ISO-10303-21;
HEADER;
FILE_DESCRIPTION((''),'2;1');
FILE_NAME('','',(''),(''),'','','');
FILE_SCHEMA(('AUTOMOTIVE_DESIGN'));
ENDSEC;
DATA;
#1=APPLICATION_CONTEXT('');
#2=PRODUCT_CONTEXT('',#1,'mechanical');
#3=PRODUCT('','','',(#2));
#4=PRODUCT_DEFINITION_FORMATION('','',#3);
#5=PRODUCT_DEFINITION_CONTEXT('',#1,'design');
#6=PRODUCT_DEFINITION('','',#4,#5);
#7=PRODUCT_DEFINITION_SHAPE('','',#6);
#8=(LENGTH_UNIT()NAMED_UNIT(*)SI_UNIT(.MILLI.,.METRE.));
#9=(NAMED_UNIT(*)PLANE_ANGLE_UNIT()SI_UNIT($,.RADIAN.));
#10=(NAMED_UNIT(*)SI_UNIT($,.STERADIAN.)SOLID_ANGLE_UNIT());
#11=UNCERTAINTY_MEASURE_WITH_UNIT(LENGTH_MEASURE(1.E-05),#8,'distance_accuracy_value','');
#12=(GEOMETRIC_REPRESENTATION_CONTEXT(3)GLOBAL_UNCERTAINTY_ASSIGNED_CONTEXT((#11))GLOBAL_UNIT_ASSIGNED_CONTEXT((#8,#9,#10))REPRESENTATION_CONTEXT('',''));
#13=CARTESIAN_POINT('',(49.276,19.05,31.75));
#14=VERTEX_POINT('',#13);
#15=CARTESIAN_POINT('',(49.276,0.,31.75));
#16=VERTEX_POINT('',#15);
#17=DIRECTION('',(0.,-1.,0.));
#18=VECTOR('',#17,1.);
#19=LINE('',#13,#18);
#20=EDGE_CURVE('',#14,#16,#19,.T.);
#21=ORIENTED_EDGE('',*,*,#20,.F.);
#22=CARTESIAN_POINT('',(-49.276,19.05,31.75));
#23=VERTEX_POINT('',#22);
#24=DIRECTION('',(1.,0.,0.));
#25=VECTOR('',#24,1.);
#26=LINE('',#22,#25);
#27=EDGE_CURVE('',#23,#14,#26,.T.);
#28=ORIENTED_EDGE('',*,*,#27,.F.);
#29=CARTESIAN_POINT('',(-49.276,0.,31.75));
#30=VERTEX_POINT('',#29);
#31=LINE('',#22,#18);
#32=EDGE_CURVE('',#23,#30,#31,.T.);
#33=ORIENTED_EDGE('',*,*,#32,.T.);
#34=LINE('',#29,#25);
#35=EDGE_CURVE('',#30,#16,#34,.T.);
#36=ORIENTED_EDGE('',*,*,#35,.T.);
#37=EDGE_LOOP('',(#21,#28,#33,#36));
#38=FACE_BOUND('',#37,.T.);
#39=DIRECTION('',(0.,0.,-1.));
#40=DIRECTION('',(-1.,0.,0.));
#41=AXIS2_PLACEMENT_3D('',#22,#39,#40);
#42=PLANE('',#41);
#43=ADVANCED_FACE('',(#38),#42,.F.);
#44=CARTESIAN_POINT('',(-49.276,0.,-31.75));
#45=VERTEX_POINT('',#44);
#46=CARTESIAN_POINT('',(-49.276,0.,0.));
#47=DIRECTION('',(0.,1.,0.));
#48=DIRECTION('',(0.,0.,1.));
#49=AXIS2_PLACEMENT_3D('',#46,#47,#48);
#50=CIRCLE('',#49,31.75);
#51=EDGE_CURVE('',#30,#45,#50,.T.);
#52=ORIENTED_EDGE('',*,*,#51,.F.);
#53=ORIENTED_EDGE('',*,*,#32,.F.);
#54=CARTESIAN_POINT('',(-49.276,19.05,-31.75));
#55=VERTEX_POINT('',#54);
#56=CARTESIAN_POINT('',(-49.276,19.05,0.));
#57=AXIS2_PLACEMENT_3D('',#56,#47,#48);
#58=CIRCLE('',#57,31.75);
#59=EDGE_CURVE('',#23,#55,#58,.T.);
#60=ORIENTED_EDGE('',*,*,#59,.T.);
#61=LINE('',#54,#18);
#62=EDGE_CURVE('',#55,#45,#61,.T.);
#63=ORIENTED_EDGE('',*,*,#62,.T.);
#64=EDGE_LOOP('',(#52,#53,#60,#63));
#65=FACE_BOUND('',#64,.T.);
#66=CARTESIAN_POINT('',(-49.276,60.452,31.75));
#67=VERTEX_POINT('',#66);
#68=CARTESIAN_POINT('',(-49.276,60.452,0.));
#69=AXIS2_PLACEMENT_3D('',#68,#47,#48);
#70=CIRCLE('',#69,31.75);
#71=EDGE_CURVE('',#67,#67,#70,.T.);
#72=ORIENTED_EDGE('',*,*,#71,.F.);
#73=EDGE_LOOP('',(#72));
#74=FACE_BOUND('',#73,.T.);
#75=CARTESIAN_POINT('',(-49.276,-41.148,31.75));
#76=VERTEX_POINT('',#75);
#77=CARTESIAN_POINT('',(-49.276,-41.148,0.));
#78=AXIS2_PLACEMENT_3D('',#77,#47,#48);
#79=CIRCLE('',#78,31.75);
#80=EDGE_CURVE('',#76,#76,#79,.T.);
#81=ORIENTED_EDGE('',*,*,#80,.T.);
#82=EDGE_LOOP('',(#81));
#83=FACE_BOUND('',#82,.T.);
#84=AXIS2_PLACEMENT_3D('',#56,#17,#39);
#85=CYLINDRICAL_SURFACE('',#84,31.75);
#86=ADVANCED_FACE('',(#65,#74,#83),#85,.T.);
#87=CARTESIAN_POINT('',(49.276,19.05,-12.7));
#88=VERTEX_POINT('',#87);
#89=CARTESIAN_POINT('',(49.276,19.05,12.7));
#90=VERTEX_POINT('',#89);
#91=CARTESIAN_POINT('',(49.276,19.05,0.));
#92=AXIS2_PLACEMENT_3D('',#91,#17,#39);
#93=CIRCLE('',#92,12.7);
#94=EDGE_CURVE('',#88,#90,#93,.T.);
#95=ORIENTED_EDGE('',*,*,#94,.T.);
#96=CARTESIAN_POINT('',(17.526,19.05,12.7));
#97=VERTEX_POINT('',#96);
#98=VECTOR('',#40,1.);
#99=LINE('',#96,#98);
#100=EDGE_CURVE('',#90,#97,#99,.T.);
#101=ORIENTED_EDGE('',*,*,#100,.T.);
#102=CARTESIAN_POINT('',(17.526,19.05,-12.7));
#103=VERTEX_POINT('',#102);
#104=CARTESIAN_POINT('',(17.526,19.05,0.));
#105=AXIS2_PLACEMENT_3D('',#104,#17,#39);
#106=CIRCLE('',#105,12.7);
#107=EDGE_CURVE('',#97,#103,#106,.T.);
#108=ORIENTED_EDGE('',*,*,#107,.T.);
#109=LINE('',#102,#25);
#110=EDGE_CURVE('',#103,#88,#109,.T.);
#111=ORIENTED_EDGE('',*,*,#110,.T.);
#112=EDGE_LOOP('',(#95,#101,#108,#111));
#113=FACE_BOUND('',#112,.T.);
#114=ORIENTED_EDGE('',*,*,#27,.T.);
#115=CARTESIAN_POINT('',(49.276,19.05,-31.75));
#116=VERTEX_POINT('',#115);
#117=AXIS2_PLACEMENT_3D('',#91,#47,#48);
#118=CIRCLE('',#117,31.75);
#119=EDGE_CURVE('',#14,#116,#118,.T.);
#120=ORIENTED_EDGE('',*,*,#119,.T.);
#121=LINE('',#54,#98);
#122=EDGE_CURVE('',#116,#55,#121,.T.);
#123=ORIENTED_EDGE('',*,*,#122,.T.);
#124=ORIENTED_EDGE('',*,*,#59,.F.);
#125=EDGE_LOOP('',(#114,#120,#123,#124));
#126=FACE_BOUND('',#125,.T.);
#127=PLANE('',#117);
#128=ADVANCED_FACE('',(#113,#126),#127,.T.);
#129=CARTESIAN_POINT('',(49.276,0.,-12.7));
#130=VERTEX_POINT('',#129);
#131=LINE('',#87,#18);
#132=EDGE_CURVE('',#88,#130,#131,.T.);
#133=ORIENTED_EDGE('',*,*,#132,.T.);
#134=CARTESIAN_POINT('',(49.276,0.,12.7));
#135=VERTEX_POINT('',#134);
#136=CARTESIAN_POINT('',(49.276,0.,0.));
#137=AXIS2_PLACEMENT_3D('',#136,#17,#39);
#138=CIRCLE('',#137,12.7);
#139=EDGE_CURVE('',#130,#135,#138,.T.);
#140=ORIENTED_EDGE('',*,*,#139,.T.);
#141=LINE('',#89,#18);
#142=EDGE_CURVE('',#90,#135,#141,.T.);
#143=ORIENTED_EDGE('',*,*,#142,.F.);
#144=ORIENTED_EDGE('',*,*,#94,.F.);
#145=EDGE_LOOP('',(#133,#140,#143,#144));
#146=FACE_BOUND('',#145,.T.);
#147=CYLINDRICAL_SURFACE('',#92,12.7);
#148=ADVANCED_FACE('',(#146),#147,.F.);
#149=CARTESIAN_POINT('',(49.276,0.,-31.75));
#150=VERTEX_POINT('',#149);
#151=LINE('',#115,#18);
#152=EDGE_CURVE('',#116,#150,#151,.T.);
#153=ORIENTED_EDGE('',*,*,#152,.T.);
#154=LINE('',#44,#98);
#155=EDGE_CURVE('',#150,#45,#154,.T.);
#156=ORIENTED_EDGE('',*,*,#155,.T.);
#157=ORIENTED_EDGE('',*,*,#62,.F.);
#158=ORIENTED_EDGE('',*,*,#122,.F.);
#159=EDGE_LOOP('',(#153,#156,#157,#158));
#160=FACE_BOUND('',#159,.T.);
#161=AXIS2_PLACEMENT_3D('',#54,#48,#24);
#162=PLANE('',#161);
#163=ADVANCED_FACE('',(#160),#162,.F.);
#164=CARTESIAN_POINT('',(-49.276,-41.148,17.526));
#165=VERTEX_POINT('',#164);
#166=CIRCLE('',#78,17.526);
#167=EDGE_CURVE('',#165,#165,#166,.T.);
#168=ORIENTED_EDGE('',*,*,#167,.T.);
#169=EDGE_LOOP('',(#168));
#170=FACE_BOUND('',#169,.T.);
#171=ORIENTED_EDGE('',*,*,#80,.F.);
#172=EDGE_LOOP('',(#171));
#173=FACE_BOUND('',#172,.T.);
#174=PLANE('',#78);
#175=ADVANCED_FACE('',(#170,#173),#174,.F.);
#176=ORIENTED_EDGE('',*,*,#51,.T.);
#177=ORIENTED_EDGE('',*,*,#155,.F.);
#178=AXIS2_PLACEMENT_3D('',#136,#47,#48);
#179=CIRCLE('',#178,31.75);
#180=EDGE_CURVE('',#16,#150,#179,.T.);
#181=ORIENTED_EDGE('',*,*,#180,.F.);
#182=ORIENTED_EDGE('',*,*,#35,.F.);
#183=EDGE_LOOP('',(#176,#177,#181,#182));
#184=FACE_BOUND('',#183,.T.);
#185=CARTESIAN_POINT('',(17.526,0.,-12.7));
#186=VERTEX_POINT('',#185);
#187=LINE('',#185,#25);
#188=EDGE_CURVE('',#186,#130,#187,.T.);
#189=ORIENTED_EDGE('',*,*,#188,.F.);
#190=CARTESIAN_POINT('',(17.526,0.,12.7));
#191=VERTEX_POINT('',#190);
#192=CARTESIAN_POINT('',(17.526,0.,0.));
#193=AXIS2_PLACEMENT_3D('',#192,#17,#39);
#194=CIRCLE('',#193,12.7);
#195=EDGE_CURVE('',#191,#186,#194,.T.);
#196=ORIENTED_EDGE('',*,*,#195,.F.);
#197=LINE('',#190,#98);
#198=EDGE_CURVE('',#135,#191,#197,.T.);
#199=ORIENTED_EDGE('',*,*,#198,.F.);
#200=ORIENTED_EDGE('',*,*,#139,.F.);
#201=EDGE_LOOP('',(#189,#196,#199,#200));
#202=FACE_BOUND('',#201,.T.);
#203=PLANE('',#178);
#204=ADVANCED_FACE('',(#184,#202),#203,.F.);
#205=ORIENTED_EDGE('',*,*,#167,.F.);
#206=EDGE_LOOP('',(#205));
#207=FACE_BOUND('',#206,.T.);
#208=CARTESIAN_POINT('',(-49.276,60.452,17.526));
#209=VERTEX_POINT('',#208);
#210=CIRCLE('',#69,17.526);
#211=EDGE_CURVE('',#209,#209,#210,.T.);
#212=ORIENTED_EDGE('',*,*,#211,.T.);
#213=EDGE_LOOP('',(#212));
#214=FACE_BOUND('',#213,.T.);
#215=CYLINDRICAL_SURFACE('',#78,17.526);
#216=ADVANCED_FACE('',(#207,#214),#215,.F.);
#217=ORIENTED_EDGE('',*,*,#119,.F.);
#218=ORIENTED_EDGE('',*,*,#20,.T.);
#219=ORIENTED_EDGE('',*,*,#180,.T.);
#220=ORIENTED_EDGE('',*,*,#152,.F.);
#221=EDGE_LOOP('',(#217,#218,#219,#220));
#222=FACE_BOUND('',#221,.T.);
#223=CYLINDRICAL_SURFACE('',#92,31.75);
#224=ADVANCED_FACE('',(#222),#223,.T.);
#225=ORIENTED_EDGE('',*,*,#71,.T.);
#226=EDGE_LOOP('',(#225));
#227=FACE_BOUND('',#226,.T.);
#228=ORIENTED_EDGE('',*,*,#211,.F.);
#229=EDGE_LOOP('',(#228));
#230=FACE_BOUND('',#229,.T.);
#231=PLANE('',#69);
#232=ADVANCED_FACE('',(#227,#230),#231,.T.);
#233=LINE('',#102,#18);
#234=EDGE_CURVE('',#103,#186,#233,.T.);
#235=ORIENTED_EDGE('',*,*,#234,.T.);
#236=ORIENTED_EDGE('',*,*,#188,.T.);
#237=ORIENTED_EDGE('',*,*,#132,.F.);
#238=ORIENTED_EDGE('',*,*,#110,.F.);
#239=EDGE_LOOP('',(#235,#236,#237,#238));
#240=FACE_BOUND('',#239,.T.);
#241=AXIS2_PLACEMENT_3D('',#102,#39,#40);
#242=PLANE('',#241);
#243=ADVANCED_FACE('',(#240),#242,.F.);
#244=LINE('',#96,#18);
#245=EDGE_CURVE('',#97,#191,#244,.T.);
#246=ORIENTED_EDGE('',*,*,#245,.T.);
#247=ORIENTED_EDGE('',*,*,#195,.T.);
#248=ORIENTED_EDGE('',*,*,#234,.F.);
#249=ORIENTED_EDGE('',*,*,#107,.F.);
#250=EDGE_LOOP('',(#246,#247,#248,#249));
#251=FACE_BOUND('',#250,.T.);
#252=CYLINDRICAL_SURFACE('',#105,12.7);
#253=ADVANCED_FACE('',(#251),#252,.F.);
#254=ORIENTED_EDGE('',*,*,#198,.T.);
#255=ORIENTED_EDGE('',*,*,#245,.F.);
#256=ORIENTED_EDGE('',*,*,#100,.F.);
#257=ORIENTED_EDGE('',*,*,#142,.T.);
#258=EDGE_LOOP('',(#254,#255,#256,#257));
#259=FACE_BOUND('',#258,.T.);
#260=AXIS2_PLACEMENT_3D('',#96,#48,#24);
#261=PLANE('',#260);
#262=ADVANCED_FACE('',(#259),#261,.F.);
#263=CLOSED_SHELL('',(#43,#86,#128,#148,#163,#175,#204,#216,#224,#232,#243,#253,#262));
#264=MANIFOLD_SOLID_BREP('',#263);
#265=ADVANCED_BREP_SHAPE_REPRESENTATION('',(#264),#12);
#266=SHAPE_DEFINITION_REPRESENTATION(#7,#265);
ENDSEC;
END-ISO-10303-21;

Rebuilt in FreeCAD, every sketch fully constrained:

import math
import FreeCAD as App
import Part
import Sketcher
Q = App.Units.Quantity

doc = App.newDocument("Part")
body = doc.addObject("PartDesign::Body", "Body")

sketch1 = body.newObject("Sketcher::SketchObject", "Sketch")
sketch1.AttachmentSupport = (doc.getObject("XZ_Plane"), [""])
sketch1.MapMode = "FlatFace"
sketch1.addGeometry([
    Part.LineSegment(App.Vector(49, -32, 0), App.Vector(-49, -32, 0)),
    Part.ArcOfCircle(Part.Circle(App.Vector(-49, 0, 0), App.Vector(0, 0, 1), 32), math.radians(90), math.radians(270)),
    Part.LineSegment(App.Vector(-49, 32, 0), App.Vector(49, 32, 0)),
    Part.ArcOfCircle(Part.Circle(App.Vector(49, 0, 0), App.Vector(0, 0, 1), 32), math.radians(-90), math.radians(90)),
], False)
sketch1.addConstraint([
    Sketcher.Constraint("Tangent", 0, 2, 1, 2),
    Sketcher.Constraint("Tangent", 1, 1, 2, 1),
    Sketcher.Constraint("Tangent", 2, 2, 3, 2),
    Sketcher.Constraint("Tangent", 3, 1, 0, 1),
    Sketcher.Constraint("Horizontal", 0),
    Sketcher.Constraint("Horizontal", 2),
    Sketcher.Constraint("Symmetric", 1, 3, 3, 3, -1, 1),
    Sketcher.Constraint("Radius", 1, Q("1.25 in")),
    Sketcher.Constraint("DistanceX", 0, 2, 0, 1, Q("3.88 in")),
])
pad1 = body.newObject("PartDesign::Pad", "Pad")
pad1.Profile = sketch1
pad1.Length = Q("0.75 in")
pad1.Reversed = True

sketch2 = body.newObject("Sketcher::SketchObject", "Sketch001")
sketch2.AttachmentSupport = (doc.getObject("XZ_Plane"), [""])
sketch2.MapMode = "FlatFace"
sketch2.addGeometry([
    Part.LineSegment(App.Vector(49, 13, 0), App.Vector(18, 13, 0)),
    Part.ArcOfCircle(Part.Circle(App.Vector(18, 0, 0), App.Vector(0, 0, 1), 13), math.radians(90), math.radians(270)),
    Part.LineSegment(App.Vector(18, -13, 0), App.Vector(49, -13, 0)),
    Part.ArcOfCircle(Part.Circle(App.Vector(49, 0, 0), App.Vector(0, 0, 1), 13), math.radians(-90), math.radians(90)),
], False)
sketch2.addConstraint([
    Sketcher.Constraint("Tangent", 0, 2, 1, 1),
    Sketcher.Constraint("Tangent", 1, 2, 2, 1),
    Sketcher.Constraint("Tangent", 2, 2, 3, 1),
    Sketcher.Constraint("Tangent", 3, 2, 0, 1),
    Sketcher.Constraint("Horizontal", 0),
    Sketcher.Constraint("Horizontal", 2),
    Sketcher.Constraint("PointOnObject", 1, 3, -1),
    Sketcher.Constraint("Radius", 1, Q("0.5 in")),
    Sketcher.Constraint("DistanceX", 0, 2, 0, 1, Q("1.25 in")),
    Sketcher.Constraint("DistanceX", -1, 1, 1, 3, Q("0.69 in")),
])
pocket1 = body.newObject("PartDesign::Pocket", "Pocket")
pocket1.Profile = sketch2
pocket1.Type = "ThroughAll"

sketch3 = body.newObject("Sketcher::SketchObject", "Sketch002")
sketch3.AttachmentSupport = (doc.getObject("XZ_Plane"), [""])
sketch3.MapMode = "FlatFace"
sketch3.AttachmentOffset = App.Placement(App.Vector(0, 0, -0.75 * 25.4), App.Rotation())
sketch3.addGeometry(Part.Circle(App.Vector(-49, 0, 0), App.Vector(0, 0, 1), 32), False)
sketch3.addConstraint([
    Sketcher.Constraint("PointOnObject", 0, 3, -1),
    Sketcher.Constraint("Diameter", 0, Q("2.5 in")),
    Sketcher.Constraint("DistanceX", 0, 3, -1, 1, Q("1.94 in")),
])
pad2 = body.newObject("PartDesign::Pad", "Pad001")
pad2.Profile = sketch3
pad2.Type = "TwoLengths"
pad2.Length = Q("1.63 in")
pad2.Length2 = Q("2.37 in")
pad2.Reversed = True

sketch4 = body.newObject("Sketcher::SketchObject", "Sketch003")
sketch4.AttachmentSupport = (doc.getObject("XZ_Plane"), [""])
sketch4.MapMode = "FlatFace"
sketch4.AttachmentOffset = App.Placement(App.Vector(0, 0, -2.38 * 25.4), App.Rotation())
sketch4.addGeometry(Part.Circle(App.Vector(-49, 0, 0), App.Vector(0, 0, 1), 18), False)
sketch4.addConstraint([
    Sketcher.Constraint("PointOnObject", 0, 3, -1),
    Sketcher.Constraint("Diameter", 0, Q("1.38 in")),
    Sketcher.Constraint("DistanceX", 0, 3, -1, 1, Q("1.94 in")),
])
pocket2 = body.newObject("PartDesign::Pocket", "Pocket001")
pocket2.Profile = sketch4
pocket2.Type = "ThroughAll"
pocket2.Reversed = True

doc.recompute()
